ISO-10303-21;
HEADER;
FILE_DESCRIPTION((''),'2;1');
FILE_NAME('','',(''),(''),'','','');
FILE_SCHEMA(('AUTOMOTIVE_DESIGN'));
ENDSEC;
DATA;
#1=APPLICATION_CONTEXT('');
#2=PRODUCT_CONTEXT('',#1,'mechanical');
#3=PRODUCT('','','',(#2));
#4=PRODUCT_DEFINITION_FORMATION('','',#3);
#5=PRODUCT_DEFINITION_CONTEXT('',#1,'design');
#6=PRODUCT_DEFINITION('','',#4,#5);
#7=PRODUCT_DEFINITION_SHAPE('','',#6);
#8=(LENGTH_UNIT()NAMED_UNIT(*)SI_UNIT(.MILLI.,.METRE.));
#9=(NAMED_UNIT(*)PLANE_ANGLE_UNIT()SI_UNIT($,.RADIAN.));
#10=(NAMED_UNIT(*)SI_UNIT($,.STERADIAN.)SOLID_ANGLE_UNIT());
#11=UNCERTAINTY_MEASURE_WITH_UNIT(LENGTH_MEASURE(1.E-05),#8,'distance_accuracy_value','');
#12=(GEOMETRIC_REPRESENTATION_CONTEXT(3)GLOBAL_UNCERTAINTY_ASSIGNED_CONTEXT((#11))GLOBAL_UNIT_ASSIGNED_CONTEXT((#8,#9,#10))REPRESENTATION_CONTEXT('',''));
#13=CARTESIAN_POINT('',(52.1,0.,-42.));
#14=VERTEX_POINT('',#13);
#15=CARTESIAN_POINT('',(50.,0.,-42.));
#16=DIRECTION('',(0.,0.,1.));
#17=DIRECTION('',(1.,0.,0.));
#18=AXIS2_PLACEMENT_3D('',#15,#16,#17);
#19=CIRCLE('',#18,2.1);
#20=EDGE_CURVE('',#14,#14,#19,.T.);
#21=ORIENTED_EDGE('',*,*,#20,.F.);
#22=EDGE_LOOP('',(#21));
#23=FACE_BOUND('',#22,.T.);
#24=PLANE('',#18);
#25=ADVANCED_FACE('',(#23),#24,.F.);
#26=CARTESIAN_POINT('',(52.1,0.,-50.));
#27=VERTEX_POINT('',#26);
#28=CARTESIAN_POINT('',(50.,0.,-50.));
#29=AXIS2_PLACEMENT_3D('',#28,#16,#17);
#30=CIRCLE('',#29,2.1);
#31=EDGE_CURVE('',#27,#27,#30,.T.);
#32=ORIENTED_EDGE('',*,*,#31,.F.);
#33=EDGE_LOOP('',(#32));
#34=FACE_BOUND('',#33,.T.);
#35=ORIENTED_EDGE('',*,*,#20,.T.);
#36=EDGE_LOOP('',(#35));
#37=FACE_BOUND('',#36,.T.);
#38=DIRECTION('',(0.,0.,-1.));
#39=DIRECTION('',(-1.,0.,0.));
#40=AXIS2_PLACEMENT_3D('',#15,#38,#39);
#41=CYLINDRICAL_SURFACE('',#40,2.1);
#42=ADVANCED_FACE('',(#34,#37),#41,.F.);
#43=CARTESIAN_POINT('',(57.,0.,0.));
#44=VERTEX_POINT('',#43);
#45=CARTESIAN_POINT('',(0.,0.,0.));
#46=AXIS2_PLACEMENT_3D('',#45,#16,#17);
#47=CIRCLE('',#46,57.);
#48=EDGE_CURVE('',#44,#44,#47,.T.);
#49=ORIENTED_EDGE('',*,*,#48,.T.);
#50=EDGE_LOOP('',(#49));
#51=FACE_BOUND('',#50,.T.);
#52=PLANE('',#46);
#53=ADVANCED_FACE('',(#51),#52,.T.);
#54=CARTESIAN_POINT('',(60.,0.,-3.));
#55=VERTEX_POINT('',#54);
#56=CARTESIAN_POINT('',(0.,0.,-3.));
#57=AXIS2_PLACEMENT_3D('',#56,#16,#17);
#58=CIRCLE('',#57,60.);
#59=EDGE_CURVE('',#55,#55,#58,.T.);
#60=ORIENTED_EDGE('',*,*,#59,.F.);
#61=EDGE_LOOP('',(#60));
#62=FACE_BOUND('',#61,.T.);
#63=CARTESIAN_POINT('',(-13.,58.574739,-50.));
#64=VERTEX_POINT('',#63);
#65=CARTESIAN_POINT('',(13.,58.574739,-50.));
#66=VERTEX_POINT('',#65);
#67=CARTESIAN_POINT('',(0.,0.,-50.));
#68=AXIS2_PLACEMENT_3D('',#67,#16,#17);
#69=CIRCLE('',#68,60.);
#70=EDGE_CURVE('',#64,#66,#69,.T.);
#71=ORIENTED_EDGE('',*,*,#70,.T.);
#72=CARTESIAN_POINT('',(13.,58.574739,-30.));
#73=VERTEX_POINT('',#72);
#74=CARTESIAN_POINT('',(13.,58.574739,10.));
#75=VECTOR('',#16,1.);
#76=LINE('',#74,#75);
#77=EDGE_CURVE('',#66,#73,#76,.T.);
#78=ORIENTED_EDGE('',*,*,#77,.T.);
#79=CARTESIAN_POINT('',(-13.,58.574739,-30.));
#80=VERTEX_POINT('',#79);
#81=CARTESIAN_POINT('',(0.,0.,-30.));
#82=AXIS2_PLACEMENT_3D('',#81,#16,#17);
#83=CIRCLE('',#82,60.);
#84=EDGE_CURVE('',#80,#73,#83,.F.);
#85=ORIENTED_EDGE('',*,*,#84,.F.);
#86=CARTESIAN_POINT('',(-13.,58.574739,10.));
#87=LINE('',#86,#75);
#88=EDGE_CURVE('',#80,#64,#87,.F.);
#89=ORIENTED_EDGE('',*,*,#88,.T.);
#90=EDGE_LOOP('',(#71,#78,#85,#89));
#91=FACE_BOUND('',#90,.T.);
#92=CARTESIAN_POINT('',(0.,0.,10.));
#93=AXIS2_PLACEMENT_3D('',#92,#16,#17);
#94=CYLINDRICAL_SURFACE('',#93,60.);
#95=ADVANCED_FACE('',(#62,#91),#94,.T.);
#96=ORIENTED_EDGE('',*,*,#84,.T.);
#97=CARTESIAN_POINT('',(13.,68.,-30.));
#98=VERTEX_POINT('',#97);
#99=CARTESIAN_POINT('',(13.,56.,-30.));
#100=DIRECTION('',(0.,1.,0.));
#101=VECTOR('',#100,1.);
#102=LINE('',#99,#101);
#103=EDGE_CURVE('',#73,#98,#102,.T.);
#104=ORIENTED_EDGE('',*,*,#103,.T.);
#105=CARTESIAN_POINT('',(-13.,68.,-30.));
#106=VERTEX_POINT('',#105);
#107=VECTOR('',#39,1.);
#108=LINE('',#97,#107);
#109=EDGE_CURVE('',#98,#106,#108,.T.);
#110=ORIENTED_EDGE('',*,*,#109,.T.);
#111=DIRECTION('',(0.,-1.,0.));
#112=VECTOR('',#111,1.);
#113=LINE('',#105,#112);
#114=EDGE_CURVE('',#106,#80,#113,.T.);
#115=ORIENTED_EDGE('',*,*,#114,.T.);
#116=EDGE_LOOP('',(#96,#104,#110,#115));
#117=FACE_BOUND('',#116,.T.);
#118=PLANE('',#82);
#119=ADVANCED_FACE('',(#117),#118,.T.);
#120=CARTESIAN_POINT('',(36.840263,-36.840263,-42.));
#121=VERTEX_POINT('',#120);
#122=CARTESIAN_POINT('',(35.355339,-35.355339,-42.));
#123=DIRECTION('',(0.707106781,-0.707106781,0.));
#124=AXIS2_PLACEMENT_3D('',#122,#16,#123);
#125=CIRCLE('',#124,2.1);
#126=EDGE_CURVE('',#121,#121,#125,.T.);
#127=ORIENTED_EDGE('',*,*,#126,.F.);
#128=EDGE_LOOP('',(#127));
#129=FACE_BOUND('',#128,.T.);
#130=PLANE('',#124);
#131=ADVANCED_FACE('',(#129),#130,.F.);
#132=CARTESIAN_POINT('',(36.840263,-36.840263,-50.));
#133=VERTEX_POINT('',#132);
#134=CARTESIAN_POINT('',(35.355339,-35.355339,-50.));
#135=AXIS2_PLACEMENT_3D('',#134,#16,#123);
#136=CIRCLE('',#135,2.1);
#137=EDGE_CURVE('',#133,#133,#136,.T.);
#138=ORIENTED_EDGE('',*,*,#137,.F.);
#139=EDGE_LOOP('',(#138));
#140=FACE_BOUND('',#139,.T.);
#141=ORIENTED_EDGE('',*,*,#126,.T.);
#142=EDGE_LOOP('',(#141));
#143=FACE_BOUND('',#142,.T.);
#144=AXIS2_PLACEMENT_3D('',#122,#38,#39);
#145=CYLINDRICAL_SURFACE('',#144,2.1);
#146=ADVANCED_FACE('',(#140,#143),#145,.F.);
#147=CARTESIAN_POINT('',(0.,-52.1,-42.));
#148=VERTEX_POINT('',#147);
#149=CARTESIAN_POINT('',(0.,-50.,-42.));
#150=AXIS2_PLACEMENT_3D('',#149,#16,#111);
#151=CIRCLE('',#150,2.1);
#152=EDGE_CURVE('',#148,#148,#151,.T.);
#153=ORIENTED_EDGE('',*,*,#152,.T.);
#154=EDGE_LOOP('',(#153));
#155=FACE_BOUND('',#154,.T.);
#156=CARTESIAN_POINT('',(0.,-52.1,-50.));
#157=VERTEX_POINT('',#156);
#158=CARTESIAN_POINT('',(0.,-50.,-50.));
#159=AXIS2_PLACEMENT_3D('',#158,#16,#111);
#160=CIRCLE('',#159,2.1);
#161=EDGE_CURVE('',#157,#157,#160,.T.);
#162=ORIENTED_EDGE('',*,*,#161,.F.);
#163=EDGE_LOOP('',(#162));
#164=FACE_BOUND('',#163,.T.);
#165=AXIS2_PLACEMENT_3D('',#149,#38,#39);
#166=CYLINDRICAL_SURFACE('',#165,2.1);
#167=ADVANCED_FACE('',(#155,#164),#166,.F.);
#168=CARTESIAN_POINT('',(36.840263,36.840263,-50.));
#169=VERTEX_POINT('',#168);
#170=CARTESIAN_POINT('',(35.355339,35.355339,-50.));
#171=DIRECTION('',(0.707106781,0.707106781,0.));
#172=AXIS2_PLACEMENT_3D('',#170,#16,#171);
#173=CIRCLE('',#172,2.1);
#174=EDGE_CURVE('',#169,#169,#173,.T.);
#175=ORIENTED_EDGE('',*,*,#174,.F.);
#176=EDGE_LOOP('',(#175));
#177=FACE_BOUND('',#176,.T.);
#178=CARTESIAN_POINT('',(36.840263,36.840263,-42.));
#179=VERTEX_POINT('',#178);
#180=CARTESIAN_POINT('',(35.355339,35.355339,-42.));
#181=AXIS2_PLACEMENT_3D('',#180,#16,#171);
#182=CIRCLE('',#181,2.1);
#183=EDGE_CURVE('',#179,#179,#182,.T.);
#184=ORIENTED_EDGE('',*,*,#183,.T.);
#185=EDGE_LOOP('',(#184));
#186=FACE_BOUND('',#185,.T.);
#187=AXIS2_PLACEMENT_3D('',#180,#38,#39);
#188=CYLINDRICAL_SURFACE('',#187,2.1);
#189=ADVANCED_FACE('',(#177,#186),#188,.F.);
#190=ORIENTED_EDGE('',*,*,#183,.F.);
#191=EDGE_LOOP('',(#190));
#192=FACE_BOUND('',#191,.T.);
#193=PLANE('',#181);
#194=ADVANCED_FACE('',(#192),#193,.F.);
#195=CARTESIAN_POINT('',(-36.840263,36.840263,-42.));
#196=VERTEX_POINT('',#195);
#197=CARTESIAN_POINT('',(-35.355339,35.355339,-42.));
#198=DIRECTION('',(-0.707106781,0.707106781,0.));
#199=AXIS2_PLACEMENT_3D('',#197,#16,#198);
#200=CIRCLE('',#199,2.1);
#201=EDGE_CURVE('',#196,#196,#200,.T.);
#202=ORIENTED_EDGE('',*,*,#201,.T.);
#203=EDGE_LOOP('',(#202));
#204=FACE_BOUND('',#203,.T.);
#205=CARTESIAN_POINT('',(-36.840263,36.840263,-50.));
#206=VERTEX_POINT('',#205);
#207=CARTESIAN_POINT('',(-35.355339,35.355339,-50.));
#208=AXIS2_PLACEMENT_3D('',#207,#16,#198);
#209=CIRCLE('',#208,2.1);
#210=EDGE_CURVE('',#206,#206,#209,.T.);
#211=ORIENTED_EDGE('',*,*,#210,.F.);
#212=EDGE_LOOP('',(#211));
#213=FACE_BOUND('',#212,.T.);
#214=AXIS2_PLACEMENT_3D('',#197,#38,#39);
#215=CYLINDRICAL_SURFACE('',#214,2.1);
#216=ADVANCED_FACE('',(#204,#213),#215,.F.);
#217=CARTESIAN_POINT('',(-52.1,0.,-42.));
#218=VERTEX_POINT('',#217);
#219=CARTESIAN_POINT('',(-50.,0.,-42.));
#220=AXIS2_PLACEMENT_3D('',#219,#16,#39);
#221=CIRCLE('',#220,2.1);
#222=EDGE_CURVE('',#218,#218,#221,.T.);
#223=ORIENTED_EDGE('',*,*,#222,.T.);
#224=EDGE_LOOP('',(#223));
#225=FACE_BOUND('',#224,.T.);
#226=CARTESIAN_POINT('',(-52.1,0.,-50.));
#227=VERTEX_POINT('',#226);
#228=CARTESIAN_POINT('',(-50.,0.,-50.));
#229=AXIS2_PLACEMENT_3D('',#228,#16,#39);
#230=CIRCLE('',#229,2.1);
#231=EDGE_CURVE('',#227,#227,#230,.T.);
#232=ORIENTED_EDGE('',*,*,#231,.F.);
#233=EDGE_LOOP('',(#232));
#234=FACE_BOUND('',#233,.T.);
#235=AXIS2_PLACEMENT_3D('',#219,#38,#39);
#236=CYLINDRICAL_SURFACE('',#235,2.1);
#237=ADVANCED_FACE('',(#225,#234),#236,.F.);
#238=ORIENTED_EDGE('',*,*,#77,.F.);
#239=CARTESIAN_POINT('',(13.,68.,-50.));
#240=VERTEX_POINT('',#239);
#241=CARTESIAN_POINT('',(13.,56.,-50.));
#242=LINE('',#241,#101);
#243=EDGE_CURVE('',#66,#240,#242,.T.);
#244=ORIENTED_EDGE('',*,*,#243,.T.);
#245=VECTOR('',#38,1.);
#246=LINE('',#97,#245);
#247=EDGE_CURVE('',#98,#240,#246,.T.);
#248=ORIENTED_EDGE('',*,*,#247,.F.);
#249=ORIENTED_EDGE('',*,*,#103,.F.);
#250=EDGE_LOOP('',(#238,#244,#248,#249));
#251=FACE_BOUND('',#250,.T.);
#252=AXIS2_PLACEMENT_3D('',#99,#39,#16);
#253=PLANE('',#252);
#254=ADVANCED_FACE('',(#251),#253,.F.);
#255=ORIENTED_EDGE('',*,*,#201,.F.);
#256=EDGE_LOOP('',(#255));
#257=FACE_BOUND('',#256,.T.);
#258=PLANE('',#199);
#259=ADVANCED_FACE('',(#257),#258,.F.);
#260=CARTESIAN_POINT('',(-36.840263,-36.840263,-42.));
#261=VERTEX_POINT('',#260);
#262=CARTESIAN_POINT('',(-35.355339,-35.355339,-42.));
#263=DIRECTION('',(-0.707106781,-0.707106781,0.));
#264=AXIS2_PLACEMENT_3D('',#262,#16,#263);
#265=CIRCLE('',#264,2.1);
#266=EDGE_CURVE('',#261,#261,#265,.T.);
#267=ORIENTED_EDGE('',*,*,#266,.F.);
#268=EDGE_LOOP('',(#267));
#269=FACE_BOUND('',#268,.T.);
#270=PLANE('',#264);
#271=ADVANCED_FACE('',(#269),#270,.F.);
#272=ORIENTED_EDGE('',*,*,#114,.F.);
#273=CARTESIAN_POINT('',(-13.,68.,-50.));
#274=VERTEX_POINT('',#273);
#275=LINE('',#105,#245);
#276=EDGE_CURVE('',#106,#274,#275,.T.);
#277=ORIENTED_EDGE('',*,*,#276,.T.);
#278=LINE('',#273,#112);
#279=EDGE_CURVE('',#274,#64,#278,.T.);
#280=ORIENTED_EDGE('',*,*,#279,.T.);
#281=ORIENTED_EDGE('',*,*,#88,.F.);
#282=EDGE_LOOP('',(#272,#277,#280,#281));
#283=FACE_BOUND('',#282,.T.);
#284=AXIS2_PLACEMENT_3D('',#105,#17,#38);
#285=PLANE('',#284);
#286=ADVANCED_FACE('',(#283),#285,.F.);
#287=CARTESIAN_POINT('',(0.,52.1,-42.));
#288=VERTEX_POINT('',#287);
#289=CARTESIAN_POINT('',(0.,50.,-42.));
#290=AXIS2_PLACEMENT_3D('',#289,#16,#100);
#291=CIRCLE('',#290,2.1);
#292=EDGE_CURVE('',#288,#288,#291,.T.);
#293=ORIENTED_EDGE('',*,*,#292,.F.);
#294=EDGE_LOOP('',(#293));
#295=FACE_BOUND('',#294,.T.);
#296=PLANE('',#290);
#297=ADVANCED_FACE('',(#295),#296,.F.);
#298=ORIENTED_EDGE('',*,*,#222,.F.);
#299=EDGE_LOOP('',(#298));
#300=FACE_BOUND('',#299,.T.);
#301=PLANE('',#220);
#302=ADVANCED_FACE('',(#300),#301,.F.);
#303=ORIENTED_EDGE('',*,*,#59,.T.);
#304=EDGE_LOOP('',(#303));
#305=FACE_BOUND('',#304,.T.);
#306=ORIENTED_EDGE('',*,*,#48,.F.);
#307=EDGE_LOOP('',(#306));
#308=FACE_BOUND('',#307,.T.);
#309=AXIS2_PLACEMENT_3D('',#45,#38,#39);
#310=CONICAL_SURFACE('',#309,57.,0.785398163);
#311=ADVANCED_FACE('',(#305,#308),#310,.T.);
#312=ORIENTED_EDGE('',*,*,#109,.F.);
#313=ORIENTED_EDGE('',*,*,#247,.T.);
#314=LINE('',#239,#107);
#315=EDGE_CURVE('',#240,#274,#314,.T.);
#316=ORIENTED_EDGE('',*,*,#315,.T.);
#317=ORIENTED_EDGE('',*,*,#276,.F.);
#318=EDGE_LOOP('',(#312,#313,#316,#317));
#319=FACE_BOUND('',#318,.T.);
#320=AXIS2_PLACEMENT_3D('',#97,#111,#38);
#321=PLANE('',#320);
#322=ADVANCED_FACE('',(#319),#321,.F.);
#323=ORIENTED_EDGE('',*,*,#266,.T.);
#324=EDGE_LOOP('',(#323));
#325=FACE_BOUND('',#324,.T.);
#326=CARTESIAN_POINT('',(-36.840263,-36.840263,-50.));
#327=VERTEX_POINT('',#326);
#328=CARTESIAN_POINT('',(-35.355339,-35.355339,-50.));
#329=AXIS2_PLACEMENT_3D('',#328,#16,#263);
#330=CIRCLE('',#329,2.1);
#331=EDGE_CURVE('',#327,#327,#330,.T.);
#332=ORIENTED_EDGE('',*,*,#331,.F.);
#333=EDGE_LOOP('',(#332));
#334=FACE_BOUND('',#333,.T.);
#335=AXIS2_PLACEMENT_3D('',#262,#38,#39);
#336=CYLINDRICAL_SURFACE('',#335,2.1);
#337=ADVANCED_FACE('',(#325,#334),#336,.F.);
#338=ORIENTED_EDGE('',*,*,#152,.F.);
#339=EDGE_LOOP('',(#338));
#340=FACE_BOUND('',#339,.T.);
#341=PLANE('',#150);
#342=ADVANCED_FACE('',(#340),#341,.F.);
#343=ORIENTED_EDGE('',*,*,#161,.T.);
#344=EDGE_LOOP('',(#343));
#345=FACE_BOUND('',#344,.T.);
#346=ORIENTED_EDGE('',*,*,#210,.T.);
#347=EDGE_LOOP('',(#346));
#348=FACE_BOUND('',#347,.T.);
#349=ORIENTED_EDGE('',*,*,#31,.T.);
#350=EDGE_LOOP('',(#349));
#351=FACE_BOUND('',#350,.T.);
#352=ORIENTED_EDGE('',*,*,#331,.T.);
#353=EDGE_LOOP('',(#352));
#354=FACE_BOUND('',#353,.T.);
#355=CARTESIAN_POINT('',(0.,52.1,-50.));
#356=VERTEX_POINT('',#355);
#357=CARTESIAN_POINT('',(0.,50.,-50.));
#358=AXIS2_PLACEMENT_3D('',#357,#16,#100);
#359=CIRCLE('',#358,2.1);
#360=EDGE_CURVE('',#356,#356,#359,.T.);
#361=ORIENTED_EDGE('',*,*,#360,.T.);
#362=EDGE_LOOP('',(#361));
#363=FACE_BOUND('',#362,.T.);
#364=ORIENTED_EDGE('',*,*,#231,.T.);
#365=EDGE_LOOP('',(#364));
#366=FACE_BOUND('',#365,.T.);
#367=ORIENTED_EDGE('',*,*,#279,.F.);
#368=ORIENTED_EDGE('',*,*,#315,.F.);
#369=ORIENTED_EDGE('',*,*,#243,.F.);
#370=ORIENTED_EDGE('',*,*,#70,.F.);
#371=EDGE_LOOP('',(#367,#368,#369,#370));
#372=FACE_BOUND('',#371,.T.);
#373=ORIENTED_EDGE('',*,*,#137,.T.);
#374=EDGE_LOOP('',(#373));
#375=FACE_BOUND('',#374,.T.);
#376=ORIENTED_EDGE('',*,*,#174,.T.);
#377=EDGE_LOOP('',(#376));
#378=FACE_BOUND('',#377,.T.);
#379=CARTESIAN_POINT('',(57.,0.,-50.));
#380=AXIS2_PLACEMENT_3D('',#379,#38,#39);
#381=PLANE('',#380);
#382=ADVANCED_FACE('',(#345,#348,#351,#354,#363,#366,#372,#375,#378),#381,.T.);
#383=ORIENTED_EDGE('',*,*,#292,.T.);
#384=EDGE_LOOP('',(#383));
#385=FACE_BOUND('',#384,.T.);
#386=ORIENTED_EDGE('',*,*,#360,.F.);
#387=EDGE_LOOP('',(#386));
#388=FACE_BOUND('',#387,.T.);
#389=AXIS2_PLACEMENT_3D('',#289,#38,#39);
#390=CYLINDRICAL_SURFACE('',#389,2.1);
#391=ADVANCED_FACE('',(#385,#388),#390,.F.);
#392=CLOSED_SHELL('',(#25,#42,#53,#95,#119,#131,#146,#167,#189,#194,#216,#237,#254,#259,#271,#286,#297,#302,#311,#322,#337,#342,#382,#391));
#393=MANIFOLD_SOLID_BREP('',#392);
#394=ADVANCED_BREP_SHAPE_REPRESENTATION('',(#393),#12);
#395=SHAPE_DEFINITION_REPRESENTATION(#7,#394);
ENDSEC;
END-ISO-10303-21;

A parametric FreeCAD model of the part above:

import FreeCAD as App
import Part
import Sketcher

V = App.Vector


def add_polygon(sketch, points):
    """Adds a closed chain of lines whose ends are joined by coincident constraints."""
    first, n = sketch.GeometryCount, len(points)
    for a, b in zip(points, points[1:] + points[:1]):
        sketch.addGeometry(Part.LineSegment(App.Vector(*a, 0), App.Vector(*b, 0)), False)
    for i in range(n):
        sketch.addConstraint(Sketcher.Constraint("Coincident", first + i, 2, first + (i + 1) % n, 1))

doc = App.newDocument("Part")
body = doc.addObject("PartDesign::Body", "Body")

sketch1 = body.newObject("Sketcher::SketchObject", "Sketch")
sketch1.AttachmentSupport = (doc.getObject("XZ_Plane"), [""])
sketch1.MapMode = "FlatFace"
add_polygon(sketch1, [(0, 0), (57, 0), (60, -3), (60, -50), (0, -50)])
sketch1.addConstraint([
    Sketcher.Constraint("Horizontal", 0),
    Sketcher.Constraint("Vertical", 2),
    Sketcher.Constraint("Horizontal", 3),
    Sketcher.Constraint("Vertical", 4),
    Sketcher.Constraint("Coincident", 4, 2, -1, 1),
    Sketcher.Constraint("DistanceX", 0, 1, 0, 2, 57.0),
    Sketcher.Constraint("DistanceX", 3, 2, 3, 1, 60.0),
    Sketcher.Constraint("DistanceY", 2, 2, 2, 1, 47.0),
    Sketcher.Constraint("DistanceY", 4, 1, 4, 2, 50.0),
])
revolution = body.newObject("PartDesign::Revolution", "Revolution")
revolution.Profile = sketch1
revolution.ReferenceAxis = (sketch1, ["V_Axis"])
revolution.Angle = 360

sketch2 = body.newObject("Sketcher::SketchObject", "Sketch001")
sketch2.AttachmentSupport = (doc.getObject("XY_Plane"), [""])
sketch2.MapMode = "FlatFace"
sketch2.AttachmentOffset = App.Placement(V(0, 0, -50), App.Rotation())
sketch2.addGeometry(Part.Circle(V(50, 0, 0), V(0, 0, 1), 2.1), False)
sketch2.addConstraint([
    Sketcher.Constraint("PointOnObject", 0, 3, -1),
    Sketcher.Constraint("Diameter", 0, 4.2),
    Sketcher.Constraint("DistanceX", -1, 1, 0, 3, 50.0),
])
pocket1 = body.newObject("PartDesign::Pocket", "Pocket")
pocket1.Profile = sketch2
pocket1.Length = 8
pocket1.Reversed = True
doc.recompute()

polarpattern = body.newObject("PartDesign::PolarPattern", "PolarPattern")
polarpattern.Originals = [pocket1]
polarpattern.Axis = (doc.getObject("Z_Axis"), [""])
polarpattern.Angle = 360
polarpattern.Occurrences = 8
body.Tip = polarpattern

sketch3 = body.newObject("Sketcher::SketchObject", "Sketch002")
sketch3.AttachmentSupport = (doc.getObject("XY_Plane"), [""])
sketch3.MapMode = "FlatFace"
sketch3.AttachmentOffset = App.Placement(V(0, 0, -50), App.Rotation())
add_polygon(sketch3, [(-13, 68), (-13, 56), (13, 56), (13, 68)])
sketch3.addConstraint([
    Sketcher.Constraint("Vertical", 0),
    Sketcher.Constraint("Horizontal", 1),
    Sketcher.Constraint("Vertical", 2),
    Sketcher.Constraint("Horizontal", 3),
    Sketcher.Constraint("DistanceX", 1, 1, 1, 2, 26.0),
    Sketcher.Constraint("DistanceY", 0, 2, 0, 1, 12.0),
    Sketcher.Constraint("DistanceX", 0, 2, -1, 1, 13.0),
    Sketcher.Constraint("DistanceY", -1, 1, 0, 2, 56.0),
])
pad1 = body.newObject("PartDesign::Pad", "Pad")
pad1.Profile = sketch3
pad1.Length = 20

doc.recompute()
